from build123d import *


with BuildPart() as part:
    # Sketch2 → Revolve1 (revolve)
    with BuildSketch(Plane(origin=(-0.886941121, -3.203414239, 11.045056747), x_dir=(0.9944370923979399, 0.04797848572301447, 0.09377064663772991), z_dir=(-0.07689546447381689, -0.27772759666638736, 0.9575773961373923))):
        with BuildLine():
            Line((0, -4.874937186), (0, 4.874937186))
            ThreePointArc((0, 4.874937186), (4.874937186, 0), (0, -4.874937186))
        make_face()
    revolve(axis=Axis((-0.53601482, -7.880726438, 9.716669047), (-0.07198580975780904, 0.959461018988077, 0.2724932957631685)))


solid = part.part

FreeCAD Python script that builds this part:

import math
import FreeCAD as App
import Part
import Sketcher

V = App.Vector

doc = App.newDocument("Part")
body = doc.addObject("PartDesign::Body", "Body")

# Sketch on an angled plane
sketch1 = body.newObject("Sketcher::SketchObject", "Sketch")
sketch1.Placement = App.Placement(V(-0.886941, -3.203414, 11.045057), App.Rotation(V(0.994437092, 0.047978486, 0.093770647), V(-0.07198581, 0.959461018, 0.272493296), V(-0.076895464, -0.277727597, 0.957577396), "ZXY"))
sketch1.addGeometry([
    Part.LineSegment(V(0, 4.9, 0), V(0, -4.9, 0)),
    Part.ArcOfCircle(Part.Circle(V(0, 0, 0), V(0, 0, 1), 4.9), math.radians(-90), math.radians(90)),
], False)
sketch1.addConstraint([
    Sketcher.Constraint("Coincident", 0, 1, 1, 2),
    Sketcher.Constraint("Coincident", 1, 1, 0, 2),
    Sketcher.Constraint("Vertical", 0),
    Sketcher.Constraint("Coincident", 1, 3, -1, 1),
    Sketcher.Constraint("PointOnObject", 0, 1, -2),
    Sketcher.Constraint("Radius", 1, 4.874937),
])
revolution = body.newObject("PartDesign::Revolution", "Revolution")
revolution.Profile = sketch1
revolution.ReferenceAxis = (sketch1, ["V_Axis"])
revolution.Angle = 360

doc.recompute()
